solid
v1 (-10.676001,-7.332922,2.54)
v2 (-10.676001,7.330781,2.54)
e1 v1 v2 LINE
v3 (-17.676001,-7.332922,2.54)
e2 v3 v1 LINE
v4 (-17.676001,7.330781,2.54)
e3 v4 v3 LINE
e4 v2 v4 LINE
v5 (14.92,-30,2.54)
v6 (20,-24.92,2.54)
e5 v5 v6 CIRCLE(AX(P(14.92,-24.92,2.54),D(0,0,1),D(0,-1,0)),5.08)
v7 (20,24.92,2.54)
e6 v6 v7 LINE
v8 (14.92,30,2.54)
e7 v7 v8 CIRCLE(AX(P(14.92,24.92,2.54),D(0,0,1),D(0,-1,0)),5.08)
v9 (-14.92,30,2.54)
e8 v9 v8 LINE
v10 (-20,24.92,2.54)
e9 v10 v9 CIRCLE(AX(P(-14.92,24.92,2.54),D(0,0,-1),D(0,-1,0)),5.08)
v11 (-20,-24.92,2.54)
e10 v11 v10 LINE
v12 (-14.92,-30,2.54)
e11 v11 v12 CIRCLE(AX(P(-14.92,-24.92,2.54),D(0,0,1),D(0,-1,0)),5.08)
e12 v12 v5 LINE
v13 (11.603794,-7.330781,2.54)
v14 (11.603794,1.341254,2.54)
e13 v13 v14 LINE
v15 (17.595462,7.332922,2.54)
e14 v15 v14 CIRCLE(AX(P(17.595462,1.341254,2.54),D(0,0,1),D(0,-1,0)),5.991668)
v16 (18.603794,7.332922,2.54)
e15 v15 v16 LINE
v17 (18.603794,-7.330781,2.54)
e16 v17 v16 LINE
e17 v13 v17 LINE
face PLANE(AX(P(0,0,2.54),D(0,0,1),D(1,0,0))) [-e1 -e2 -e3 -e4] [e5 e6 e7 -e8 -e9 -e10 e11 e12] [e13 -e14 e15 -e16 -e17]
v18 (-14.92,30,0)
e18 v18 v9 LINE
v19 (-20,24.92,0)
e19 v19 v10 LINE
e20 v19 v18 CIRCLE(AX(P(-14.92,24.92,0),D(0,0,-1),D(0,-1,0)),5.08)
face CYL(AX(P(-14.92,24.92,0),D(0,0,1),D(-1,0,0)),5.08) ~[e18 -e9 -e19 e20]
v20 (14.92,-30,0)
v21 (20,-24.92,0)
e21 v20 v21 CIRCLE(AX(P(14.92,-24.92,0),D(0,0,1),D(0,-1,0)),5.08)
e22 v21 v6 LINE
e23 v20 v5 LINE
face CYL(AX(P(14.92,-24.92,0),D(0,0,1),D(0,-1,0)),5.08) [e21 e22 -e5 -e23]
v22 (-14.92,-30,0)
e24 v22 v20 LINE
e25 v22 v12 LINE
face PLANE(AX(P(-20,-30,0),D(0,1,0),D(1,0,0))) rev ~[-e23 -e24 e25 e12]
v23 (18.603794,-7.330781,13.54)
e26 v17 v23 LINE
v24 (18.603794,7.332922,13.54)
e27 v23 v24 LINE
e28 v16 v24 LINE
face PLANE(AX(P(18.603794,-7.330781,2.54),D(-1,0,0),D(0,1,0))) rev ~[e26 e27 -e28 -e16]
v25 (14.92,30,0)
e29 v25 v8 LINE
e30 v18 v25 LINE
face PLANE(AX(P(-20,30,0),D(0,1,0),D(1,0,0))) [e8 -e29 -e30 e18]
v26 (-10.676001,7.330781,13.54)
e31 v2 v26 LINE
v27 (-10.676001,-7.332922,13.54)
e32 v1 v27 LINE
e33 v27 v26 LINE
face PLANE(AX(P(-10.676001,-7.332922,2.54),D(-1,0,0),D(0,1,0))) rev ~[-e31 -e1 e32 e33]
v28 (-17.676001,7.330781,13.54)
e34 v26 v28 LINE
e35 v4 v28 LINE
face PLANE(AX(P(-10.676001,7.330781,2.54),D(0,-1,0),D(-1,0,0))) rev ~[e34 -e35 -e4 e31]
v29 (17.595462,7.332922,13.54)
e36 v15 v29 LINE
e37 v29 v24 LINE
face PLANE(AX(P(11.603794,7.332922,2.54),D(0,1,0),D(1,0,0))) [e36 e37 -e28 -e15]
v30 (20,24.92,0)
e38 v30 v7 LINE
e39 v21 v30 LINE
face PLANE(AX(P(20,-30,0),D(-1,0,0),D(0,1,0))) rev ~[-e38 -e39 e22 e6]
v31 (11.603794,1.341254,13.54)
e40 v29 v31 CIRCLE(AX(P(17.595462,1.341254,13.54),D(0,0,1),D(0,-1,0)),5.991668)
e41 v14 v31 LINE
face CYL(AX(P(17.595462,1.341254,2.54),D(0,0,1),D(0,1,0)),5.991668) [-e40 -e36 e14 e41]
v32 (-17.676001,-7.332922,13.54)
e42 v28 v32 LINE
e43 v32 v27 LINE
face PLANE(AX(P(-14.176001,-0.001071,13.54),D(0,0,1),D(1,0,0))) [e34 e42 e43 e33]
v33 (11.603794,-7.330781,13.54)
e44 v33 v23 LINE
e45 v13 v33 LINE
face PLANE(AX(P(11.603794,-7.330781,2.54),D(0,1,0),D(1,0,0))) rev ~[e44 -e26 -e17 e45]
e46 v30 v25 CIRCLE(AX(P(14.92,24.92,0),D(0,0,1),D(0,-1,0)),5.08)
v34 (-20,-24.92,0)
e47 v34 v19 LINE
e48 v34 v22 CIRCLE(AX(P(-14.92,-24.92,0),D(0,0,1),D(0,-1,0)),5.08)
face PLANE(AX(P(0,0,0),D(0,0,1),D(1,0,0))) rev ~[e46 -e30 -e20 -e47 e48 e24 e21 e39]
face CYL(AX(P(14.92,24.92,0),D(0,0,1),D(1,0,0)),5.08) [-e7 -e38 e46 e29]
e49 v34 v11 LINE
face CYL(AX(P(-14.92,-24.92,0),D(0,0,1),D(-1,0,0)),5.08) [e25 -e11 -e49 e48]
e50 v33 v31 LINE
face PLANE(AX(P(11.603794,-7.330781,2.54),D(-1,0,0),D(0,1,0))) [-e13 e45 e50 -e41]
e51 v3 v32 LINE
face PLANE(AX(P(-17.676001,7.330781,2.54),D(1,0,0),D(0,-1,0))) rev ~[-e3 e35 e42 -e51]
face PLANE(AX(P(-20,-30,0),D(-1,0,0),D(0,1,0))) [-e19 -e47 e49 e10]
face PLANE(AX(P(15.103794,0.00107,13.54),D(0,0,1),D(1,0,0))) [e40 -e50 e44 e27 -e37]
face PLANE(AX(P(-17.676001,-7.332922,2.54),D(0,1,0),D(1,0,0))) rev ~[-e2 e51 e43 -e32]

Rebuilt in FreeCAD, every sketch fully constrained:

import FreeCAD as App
import Part
import Sketcher


def edges_at(feature, points):
    """Names of the edges that pass closest to the given points."""
    edges = feature.Shape.Edges
    near = lambda p: min(range(len(edges)), key=lambda i: edges[i].distToShape(Part.Vertex(*p))[0])
    return sorted({f"Edge{near(p) + 1}" for p in points})

doc = App.newDocument("Part")
params = doc.addObject("Spreadsheet::Sheet", "Params")
for row, (alias, value) in enumerate([
    ("sketch1_width", "40 mm"),
    ("sketch1_height", "60 mm"),
    ("pad1_length", "2.54 mm"),
    ("fillet_radius", "5.08 mm"),
    ("sketch2_width", "7 mm"),
    ("pad2_length", "11 mm"),
    ("fillet2_radius", "5.991668 mm"),
], start=1):
    params.set(f"A{row}", alias)
    params.set(f"B{row}", "=" + value)
    params.setAlias(f"B{row}", alias)

body = doc.addObject("PartDesign::Body", "Body")

# Sketch on XY plane
sketch1 = body.newObject("Sketcher::SketchObject", "Sketch")
sketch1.AttachmentSupport = (doc.getObject("XY_Plane"), [""])
sketch1.MapMode = "FlatFace"
sketch1.addGeometry(Part.LineSegment(App.Vector(-20, 30, 0), App.Vector(-20, -30, 0)), False)
sketch1.addGeometry(Part.LineSegment(App.Vector(-20, -30, 0), App.Vector(20, -30, 0)), False)
sketch1.addGeometry(Part.LineSegment(App.Vector(20, -30, 0), App.Vector(20, 30, 0)), False)
sketch1.addGeometry(Part.LineSegment(App.Vector(20, 30, 0), App.Vector(-20, 30, 0)), False)
sketch1.addConstraint(Sketcher.Constraint("Coincident", 0, 2, 1, 1))
sketch1.addConstraint(Sketcher.Constraint("Coincident", 1, 2, 2, 1))
sketch1.addConstraint(Sketcher.Constraint("Coincident", 2, 2, 3, 1))
sketch1.addConstraint(Sketcher.Constraint("Coincident", 3, 2, 0, 1))
sketch1.addConstraint(Sketcher.Constraint("Vertical", 0))
sketch1.addConstraint(Sketcher.Constraint("Horizontal", 1))
sketch1.addConstraint(Sketcher.Constraint("Vertical", 2))
sketch1.addConstraint(Sketcher.Constraint("Horizontal", 3))
sketch1.addConstraint(Sketcher.Constraint("Symmetric", 0, 2, 2, 2, -1, 1))
sketch1.addConstraint(Sketcher.Constraint("DistanceX", 1, 1, 1, 2, 40.0))
sketch1.addConstraint(Sketcher.Constraint("DistanceY", 0, 2, 0, 1, 60.0))
sketch1.setExpression("Constraints[9]", "Params.sketch1_width")
sketch1.setExpression("Constraints[10]", "Params.sketch1_height")
pad1 = body.newObject("PartDesign::Pad", "Pad")
pad1.Profile = sketch1
pad1.setExpression("Length", "Params.pad1_length")
doc.recompute()

fillet = body.newObject("PartDesign::Fillet", "Fillet")
fillet.Base = (pad1, edges_at(pad1, [
    (-20, -30, 1.27),
    (20, -30, 1.27),
    (-20, 30, 1.27),
    (20, 30, 1.27),
]))
fillet.setExpression("Radius", "Params.fillet_radius")

# Sketch on XY plane
sketch2 = body.newObject("Sketcher::SketchObject", "Sketch001")
sketch2.AttachmentSupport = (doc.getObject("XY_Plane"), [""])
sketch2.MapMode = "FlatFace"
sketch2.AttachmentOffset = App.Placement(App.Vector(0, 0, 2.54), App.Rotation())
sketch2.addGeometry(Part.LineSegment(App.Vector(-18, -7, 0), App.Vector(-11, -7, 0)), False)
sketch2.addGeometry(Part.LineSegment(App.Vector(-11, -7, 0), App.Vector(-11, 7, 0)), False)
sketch2.addGeometry(Part.LineSegment(App.Vector(-11, 7, 0), App.Vector(-18, 7, 0)), False)
sketch2.addGeometry(Part.LineSegment(App.Vector(-18, 7, 0), App.Vector(-18, -7, 0)), False)
sketch2.addGeometry(Part.LineSegment(App.Vector(12, 7, 0), App.Vector(12, -7, 0)), False)
sketch2.addGeometry(Part.LineSegment(App.Vector(12, -7, 0), App.Vector(19, -7, 0)), False)
sketch2.addGeometry(Part.LineSegment(App.Vector(19, -7, 0), App.Vector(19, 7, 0)), False)
sketch2.addGeometry(Part.LineSegment(App.Vector(19, 7, 0), App.Vector(12, 7, 0)), False)
sketch2.addConstraint(Sketcher.Constraint("Coincident", 0, 2, 1, 1))
sketch2.addConstraint(Sketcher.Constraint("Coincident", 1, 2, 2, 1))
sketch2.addConstraint(Sketcher.Constraint("Coincident", 2, 2, 3, 1))
sketch2.addConstraint(Sketcher.Constraint("Coincident", 3, 2, 0, 1))
sketch2.addConstraint(Sketcher.Constraint("Coincident", 4, 2, 5, 1))
sketch2.addConstraint(Sketcher.Constraint("Coincident", 5, 2, 6, 1))
sketch2.addConstraint(Sketcher.Constraint("Coincident", 6, 2, 7, 1))
sketch2.addConstraint(Sketcher.Constraint("Coincident", 7, 2, 4, 1))
sketch2.addConstraint(Sketcher.Constraint("Horizontal", 0))
sketch2.addConstraint(Sketcher.Constraint("Vertical", 1))
sketch2.addConstraint(Sketcher.Constraint("Horizontal", 2))
sketch2.addConstraint(Sketcher.Constraint("Vertical", 3))
sketch2.addConstraint(Sketcher.Constraint("Vertical", 4))
sketch2.addConstraint(Sketcher.Constraint("Horizontal", 5))
sketch2.addConstraint(Sketcher.Constraint("Vertical", 6))
sketch2.addConstraint(Sketcher.Constraint("Horizontal", 7))
sketch2.addConstraint(Sketcher.Constraint("Equal", 2, 5))
sketch2.addConstraint(Sketcher.Constraint("Equal", 3, 4))
sketch2.addConstraint(Sketcher.Constraint("DistanceX", 0, 1, 0, 2, 7.0))
sketch2.addConstraint(Sketcher.Constraint("DistanceX", 0, 2, -1, 1, 10.676001))
sketch2.addConstraint(Sketcher.Constraint("DistanceY", 1, 1, 1, 2, 14.663703))
sketch2.addConstraint(Sketcher.Constraint("DistanceY", -1, 1, 1, 2, 7.330781))
sketch2.addConstraint(Sketcher.Constraint("DistanceY", 4, 2, -1, 1, 7.330781))
sketch2.addConstraint(Sketcher.Constraint("DistanceX", -1, 1, 4, 2, 11.603794))
sketch2.setExpression("Constraints[18]", "Params.sketch2_width")
pad2 = body.newObject("PartDesign::Pad", "Pad001")
pad2.Profile = sketch2
pad2.setExpression("Length", "Params.pad2_length")
doc.recompute()

fillet2 = body.newObject("PartDesign::Fillet", "Fillet001")
fillet2.Base = (pad2, edges_at(pad2, [(11.604, 7.333, 8.04)]))
fillet2.setExpression("Radius", "Params.fillet2_radius")

doc.recompute()
